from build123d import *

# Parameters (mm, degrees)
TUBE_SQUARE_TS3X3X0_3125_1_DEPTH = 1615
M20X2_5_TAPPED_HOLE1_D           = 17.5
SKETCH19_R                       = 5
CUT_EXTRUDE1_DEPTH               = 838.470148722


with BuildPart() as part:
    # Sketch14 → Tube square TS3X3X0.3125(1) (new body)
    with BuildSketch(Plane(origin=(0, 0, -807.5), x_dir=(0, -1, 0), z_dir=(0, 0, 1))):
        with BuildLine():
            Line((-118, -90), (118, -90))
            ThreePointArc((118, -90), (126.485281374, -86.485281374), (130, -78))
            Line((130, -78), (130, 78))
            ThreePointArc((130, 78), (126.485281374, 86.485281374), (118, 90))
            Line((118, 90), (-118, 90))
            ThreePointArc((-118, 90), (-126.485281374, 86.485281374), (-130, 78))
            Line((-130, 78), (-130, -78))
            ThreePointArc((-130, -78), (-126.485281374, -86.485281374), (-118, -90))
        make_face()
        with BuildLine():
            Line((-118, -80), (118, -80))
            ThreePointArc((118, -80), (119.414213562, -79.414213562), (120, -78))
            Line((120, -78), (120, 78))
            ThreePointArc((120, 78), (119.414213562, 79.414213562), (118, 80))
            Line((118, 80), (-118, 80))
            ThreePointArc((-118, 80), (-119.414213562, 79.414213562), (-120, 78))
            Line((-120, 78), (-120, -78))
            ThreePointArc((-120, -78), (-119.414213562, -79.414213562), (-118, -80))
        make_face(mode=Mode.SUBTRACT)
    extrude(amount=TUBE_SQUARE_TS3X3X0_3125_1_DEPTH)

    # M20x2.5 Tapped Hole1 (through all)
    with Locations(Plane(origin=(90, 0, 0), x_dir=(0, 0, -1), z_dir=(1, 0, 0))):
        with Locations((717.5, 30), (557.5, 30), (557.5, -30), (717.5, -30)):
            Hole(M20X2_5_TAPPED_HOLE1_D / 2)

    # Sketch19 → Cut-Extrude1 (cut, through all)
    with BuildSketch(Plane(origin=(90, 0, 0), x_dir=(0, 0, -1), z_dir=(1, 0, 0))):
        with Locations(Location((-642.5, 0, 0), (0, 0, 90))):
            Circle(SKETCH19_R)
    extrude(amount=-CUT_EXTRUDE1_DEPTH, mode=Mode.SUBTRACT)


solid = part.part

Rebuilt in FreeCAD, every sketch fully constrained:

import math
import FreeCAD as App
import Part
import Sketcher

V = App.Vector

doc = App.newDocument("Part")
body = doc.addObject("PartDesign::Body", "Body")

# Sketch on XY plane
sketch1 = body.newObject("Sketcher::SketchObject", "Sketch")
sketch1.AttachmentSupport = (doc.getObject("XY_Plane"), [""])
sketch1.MapMode = "FlatFace"
sketch1.AttachmentOffset = App.Placement(V(0, 0, -807.5), App.Rotation())
sketch1.addGeometry([
    Part.LineSegment(V(-90, 118, 0), V(-90, -118, 0)),  # 0
    Part.ArcOfCircle(Part.Circle(V(-78, -118, 0), V(0, 0, 1), 12), math.radians(-180), math.radians(-90)),  # 1
    Part.LineSegment(V(-78, -130, 0), V(78, -130, 0)),  # 2
    Part.ArcOfCircle(Part.Circle(V(78, -118, 0), V(0, 0, 1), 12), math.radians(-90), math.radians(0)),  # 3
    Part.LineSegment(V(90, -118, 0), V(90, 118, 0)),  # 4
    Part.ArcOfCircle(Part.Circle(V(78, 118, 0), V(0, 0, 1), 12), math.radians(0), math.radians(90)),  # 5
    Part.LineSegment(V(78, 130, 0), V(-78, 130, 0)),  # 6
    Part.ArcOfCircle(Part.Circle(V(-78, 118, 0), V(0, 0, 1), 12), math.radians(90), math.radians(180)),  # 7
    Part.LineSegment(V(-80, -118, 0), V(-80, 118, 0)),  # 8
    Part.ArcOfCircle(Part.Circle(V(-78, 118, 0), V(0, 0, 1), 2), math.radians(90), math.radians(180)),  # 9
    Part.LineSegment(V(-78, 120, 0), V(78, 120, 0)),  # 10
    Part.ArcOfCircle(Part.Circle(V(78, 118, 0), V(0, 0, 1), 2), math.radians(0), math.radians(90)),  # 11
    Part.LineSegment(V(80, 118, 0), V(80, -118, 0)),  # 12
    Part.ArcOfCircle(Part.Circle(V(78, -118, 0), V(0, 0, 1), 2), math.radians(-90), math.radians(0)),  # 13
    Part.LineSegment(V(78, -120, 0), V(-78, -120, 0)),  # 14
    Part.ArcOfCircle(Part.Circle(V(-78, -118, 0), V(0, 0, 1), 2), math.radians(-180), math.radians(-90)),  # 15
], False)
sketch1.addConstraint([
    Sketcher.Constraint("Tangent", 0, 2, 1, 1),
    Sketcher.Constraint("Tangent", 1, 2, 2, 1),
    Sketcher.Constraint("Tangent", 2, 2, 3, 1),
    Sketcher.Constraint("Tangent", 3, 2, 4, 1),
    Sketcher.Constraint("Tangent", 4, 2, 5, 1),
    Sketcher.Constraint("Tangent", 5, 2, 6, 1),
    Sketcher.Constraint("Tangent", 6, 2, 7, 1),
    Sketcher.Constraint("Tangent", 7, 2, 0, 1),
    Sketcher.Constraint("Tangent", 8, 2, 9, 2),
    Sketcher.Constraint("Tangent", 9, 1, 10, 1),
    Sketcher.Constraint("Tangent", 10, 2, 11, 2),
    Sketcher.Constraint("Tangent", 11, 1, 12, 1),
    Sketcher.Constraint("Tangent", 12, 2, 13, 2),
    Sketcher.Constraint("Tangent", 13, 1, 14, 1),
    Sketcher.Constraint("Tangent", 14, 2, 15, 2),
    Sketcher.Constraint("Tangent", 15, 1, 8, 1),
    Sketcher.Constraint("Vertical", 0),
    Sketcher.Constraint("Horizontal", 2),
    Sketcher.Constraint("Vertical", 4),
    Sketcher.Constraint("Horizontal", 6),
    Sketcher.Constraint("Vertical", 8),
    Sketcher.Constraint("Horizontal", 10),
    Sketcher.Constraint("Vertical", 12),
    Sketcher.Constraint("Horizontal", 14),
    Sketcher.Constraint("Coincident", 9, 3, 7, 3),
    Sketcher.Constraint("Coincident", 11, 3, 5, 3),
    Sketcher.Constraint("Coincident", 13, 3, 3, 3),
    Sketcher.Constraint("Equal", 1, 3),
    Sketcher.Constraint("Equal", 3, 5),
    Sketcher.Constraint("Equal", 5, 7),
    Sketcher.Constraint("Equal", 13, 15),
    Sketcher.Constraint("Symmetric", 1, 3, 5, 3, -1, 1),
    Sketcher.Constraint("Radius", 1, 12.0),
    Sketcher.Constraint("Radius", 9, 2.0),
    Sketcher.Constraint("DistanceX", 2, 1, 2, 2, 156.0),
    Sketcher.Constraint("DistanceY", 0, 2, 0, 1, 236.0),
])
pad1 = body.newObject("PartDesign::Pad", "Pad")
pad1.Profile = sketch1
pad1.Length = 1615

# Sketch on YZ plane
sketch2 = body.newObject("Sketcher::SketchObject", "Sketch001")
sketch2.AttachmentSupport = (doc.getObject("YZ_Plane"), [""])
sketch2.MapMode = "FlatFace"
sketch2.AttachmentOffset = App.Placement(V(0, 0, 90), App.Rotation())
sketch2.addGeometry([
    Part.Circle(V(30, -717.5, 0), V(0, 0, 1), 8.75),
    Part.Circle(V(30, -557.5, 0), V(0, 0, 1), 8.75),
    Part.Circle(V(-30, -557.5, 0), V(0, 0, 1), 8.75),
    Part.Circle(V(-30, -717.5, 0), V(0, 0, 1), 8.75),
], False)
sketch2.addConstraint([
    Sketcher.Constraint("Equal", 0, 1),
    Sketcher.Constraint("Equal", 1, 2),
    Sketcher.Constraint("Equal", 2, 3),
    Sketcher.Constraint("Symmetric", 1, 3, 2, 3, -2),
    Sketcher.Constraint("Symmetric", 0, 3, 3, 3, -2),
    Sketcher.Constraint("Vertical", 0, 3, 1, 3),
    Sketcher.Constraint("Diameter", 0, 17.5),
    Sketcher.Constraint("DistanceX", -1, 1, 0, 3, 30.0),
    Sketcher.Constraint("DistanceY", 0, 3, 1, 3, 160.0),
    Sketcher.Constraint("DistanceY", 0, 3, -1, 1, 717.5),
])
doc.recompute()
hole = body.newObject("PartDesign::Hole", "Hole")
hole.Profile = sketch2
hole.ThreadType = "None"
hole.Diameter = 17.5
hole.DepthType = "ThroughAll"

# Sketch on YZ plane
sketch3 = body.newObject("Sketcher::SketchObject", "Sketch002")
sketch3.AttachmentSupport = (doc.getObject("YZ_Plane"), [""])
sketch3.MapMode = "FlatFace"
sketch3.AttachmentOffset = App.Placement(V(0, 0, 90), App.Rotation())
sketch3.addGeometry(Part.Circle(V(0, 642.5, 0), V(0, 0, 1), 5), False)
sketch3.addConstraint([
    Sketcher.Constraint("PointOnObject", 0, 3, -2),
    Sketcher.Constraint("Diameter", 0, 10.0),
    Sketcher.Constraint("DistanceY", -1, 1, 0, 3, 642.5),
])
pocket1 = body.newObject("PartDesign::Pocket", "Pocket")
pocket1.Profile = sketch3
pocket1.Type = "ThroughAll"

doc.recompute()
